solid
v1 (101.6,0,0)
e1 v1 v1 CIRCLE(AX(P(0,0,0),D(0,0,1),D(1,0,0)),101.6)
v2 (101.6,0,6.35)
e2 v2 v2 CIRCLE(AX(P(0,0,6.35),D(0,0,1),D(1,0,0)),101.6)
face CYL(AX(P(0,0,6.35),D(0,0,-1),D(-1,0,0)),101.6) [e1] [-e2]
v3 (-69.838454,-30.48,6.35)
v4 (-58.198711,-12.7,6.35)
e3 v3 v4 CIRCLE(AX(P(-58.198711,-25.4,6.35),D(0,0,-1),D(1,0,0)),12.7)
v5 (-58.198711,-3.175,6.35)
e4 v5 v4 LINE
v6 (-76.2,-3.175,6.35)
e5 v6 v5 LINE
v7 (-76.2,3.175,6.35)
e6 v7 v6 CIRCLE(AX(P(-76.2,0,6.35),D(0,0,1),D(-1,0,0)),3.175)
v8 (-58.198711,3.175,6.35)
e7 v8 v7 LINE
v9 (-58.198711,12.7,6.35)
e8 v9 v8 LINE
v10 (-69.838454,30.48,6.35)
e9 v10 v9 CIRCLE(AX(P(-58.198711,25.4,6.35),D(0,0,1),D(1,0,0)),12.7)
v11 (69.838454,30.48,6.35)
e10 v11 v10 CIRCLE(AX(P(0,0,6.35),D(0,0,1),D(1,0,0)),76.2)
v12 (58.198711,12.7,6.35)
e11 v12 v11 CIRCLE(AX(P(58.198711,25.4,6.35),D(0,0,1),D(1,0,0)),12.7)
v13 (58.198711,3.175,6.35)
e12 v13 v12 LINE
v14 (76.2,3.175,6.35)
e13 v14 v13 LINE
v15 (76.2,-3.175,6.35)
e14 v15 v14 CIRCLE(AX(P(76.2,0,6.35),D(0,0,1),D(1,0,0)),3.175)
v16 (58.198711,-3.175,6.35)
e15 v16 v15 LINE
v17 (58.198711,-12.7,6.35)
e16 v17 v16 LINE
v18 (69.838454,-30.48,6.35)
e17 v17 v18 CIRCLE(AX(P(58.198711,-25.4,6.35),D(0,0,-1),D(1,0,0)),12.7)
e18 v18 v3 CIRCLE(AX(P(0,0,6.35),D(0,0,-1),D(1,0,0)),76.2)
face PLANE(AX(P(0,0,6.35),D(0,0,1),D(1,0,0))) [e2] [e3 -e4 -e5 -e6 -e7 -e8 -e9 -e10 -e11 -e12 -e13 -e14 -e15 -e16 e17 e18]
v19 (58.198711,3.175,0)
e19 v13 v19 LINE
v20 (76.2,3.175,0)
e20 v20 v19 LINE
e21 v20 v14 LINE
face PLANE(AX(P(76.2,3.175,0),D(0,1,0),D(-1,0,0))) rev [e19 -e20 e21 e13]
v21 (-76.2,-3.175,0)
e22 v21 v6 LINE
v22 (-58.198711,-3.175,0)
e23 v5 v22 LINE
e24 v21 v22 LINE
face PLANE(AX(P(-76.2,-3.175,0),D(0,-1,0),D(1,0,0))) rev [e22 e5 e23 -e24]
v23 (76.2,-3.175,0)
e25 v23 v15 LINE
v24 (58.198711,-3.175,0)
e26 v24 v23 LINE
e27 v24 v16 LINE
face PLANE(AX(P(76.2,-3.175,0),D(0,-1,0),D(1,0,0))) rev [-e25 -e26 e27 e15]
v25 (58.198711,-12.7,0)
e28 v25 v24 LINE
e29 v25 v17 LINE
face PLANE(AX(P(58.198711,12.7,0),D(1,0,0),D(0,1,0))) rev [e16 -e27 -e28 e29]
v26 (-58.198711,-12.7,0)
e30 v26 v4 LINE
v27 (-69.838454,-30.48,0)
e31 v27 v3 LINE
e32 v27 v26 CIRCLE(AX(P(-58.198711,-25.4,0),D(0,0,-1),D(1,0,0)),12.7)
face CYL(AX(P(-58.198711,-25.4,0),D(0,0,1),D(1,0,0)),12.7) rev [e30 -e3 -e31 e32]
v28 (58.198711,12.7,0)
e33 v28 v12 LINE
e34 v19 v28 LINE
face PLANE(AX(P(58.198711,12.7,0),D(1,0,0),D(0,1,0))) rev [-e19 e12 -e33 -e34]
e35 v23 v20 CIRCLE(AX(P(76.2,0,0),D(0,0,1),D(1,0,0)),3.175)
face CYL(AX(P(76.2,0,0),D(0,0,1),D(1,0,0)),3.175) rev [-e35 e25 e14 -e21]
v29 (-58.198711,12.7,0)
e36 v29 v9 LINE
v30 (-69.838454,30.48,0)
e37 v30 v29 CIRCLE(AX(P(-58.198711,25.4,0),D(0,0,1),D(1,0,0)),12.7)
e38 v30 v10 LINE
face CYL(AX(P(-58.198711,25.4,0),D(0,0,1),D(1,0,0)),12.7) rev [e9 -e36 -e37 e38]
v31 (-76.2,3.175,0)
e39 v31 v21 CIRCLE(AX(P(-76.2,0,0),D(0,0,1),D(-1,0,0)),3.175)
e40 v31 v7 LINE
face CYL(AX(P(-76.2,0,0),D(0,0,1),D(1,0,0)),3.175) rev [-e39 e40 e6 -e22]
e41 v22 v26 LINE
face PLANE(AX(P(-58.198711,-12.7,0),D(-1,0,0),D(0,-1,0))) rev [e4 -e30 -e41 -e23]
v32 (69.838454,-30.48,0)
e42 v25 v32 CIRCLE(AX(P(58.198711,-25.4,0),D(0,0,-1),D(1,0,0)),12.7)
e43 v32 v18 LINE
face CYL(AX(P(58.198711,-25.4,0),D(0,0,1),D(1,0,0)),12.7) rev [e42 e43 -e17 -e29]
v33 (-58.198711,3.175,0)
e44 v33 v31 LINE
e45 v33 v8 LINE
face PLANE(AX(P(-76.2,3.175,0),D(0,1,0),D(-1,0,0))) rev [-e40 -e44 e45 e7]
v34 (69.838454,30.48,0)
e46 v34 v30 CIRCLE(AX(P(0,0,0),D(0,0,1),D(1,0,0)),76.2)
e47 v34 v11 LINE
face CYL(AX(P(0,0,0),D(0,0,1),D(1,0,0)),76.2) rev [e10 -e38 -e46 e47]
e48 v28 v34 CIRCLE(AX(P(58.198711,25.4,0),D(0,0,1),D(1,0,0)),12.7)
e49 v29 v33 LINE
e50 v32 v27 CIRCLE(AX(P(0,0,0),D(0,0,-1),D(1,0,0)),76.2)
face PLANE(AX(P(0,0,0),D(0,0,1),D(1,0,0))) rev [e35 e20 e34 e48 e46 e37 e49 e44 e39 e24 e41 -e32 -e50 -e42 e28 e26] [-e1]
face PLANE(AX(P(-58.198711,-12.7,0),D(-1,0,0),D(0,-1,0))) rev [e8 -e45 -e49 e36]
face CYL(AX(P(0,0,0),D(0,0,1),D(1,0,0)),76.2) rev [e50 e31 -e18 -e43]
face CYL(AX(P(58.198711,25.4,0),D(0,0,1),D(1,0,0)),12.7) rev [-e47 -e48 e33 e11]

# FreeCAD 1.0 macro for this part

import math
import FreeCAD as App
import Part
import Sketcher
Q = App.Units.Quantity

doc = App.newDocument("Part")
params = doc.addObject("Spreadsheet::Sheet", "Params")
for row, (alias, value) in enumerate([
    ("sketch1_diameter", "8 in"),
    ("pad1_length", "0.25 in"),
    ("sketch2_diameter", "2 in"),
    ("sketch3_radius", "3 in"),
    ("sketch3_radius2", "2 in"),
    ("sketch4_width", "2 in"),
    ("sketch4_radius", "0.125 in"),
    ("sketch5_radius", "2 in"),
    ("sketch5_radius2", "0.5 in"),
    ("sketch5_height", "1 in"),
], start=1):
    params.set(f"A{row}", alias)
    params.set(f"B{row}", "=" + value)
    params.setAlias(f"B{row}", alias)

body = doc.addObject("PartDesign::Body", "Body")

sketch1 = body.newObject("Sketcher::SketchObject", "Sketch")
sketch1.AttachmentSupport = (doc.getObject("XY_Plane"), [""])
sketch1.MapMode = "FlatFace"
sketch1.addGeometry(Part.Circle(App.Vector(0, 0, 0), App.Vector(0, 0, 1), 101.6), False)
sketch1.addConstraint(Sketcher.Constraint("Coincident", 0, 3, -1, 1))
sketch1.addConstraint(Sketcher.Constraint("Diameter", 0, Q("8 in")))
sketch1.setExpression("Constraints[1]", "Params.sketch1_diameter")
pad1 = body.newObject("PartDesign::Pad", "Pad")
pad1.Profile = sketch1
pad1.setExpression("Length", "Params.pad1_length")

sketch2 = body.newObject("Sketcher::SketchObject", "Sketch001")
sketch2.AttachmentSupport = (doc.getObject("XY_Plane"), [""])
sketch2.MapMode = "FlatFace"
sketch2.AttachmentOffset = App.Placement(App.Vector(0, 0, 0.25 * 25.4), App.Rotation())
sketch2.addGeometry(Part.Circle(App.Vector(0, 0, 0), App.Vector(0, 0, 1), 25.4), False)
sketch2.addConstraint(Sketcher.Constraint("Coincident", 0, 3, -1, 1))
sketch2.addConstraint(Sketcher.Constraint("Diameter", 0, Q("2 in")))
sketch2.setExpression("Constraints[1]", "Params.sketch2_diameter")
pocket1 = body.newObject("PartDesign::Pocket", "Pocket")
pocket1.Profile = sketch2
pocket1.Type = "ThroughAll"

sketch3 = body.newObject("Sketcher::SketchObject", "Sketch002")
sketch3.AttachmentSupport = (doc.getObject("XY_Plane"), [""])
sketch3.MapMode = "FlatFace"
sketch3.AttachmentOffset = App.Placement(App.Vector(0, 0, 0.25 * 25.4), App.Rotation())
sketch3.addGeometry(Part.ArcOfCircle(Part.Circle(App.Vector(0, 0, 0), App.Vector(0, 0, 1), 76.2), math.radians(23.578178), math.radians(156.421822)), False)
sketch3.addGeometry(Part.ArcOfCircle(Part.Circle(App.Vector(-58.198711, 25.4, 0), App.Vector(0, 0, 1), 12.7), math.radians(156.421822), math.radians(336.421822)), False)
sketch3.addGeometry(Part.ArcOfCircle(Part.Circle(App.Vector(0, 0, 0), App.Vector(0, 0, 1), 50.8), math.radians(23.578178), math.radians(156.421822)), False)
sketch3.addGeometry(Part.ArcOfCircle(Part.Circle(App.Vector(58.198711, 25.4, 0), App.Vector(0, 0, 1), 12.7), math.radians(-156.421822), math.radians(23.578178)), False)
sketch3.addConstraint(Sketcher.Constraint("Tangent", 0, 2, 1, 1))
sketch3.addConstraint(Sketcher.Constraint("Tangent", 1, 2, 2, 2))
sketch3.addConstraint(Sketcher.Constraint("Tangent", 2, 1, 3, 1))
sketch3.addConstraint(Sketcher.Constraint("Tangent", 3, 2, 0, 1))
sketch3.addConstraint(Sketcher.Constraint("Coincident", 0, 3, -1, 1))
sketch3.addConstraint(Sketcher.Constraint("Coincident", 2, 3, -1, 1))
sketch3.addConstraint(Sketcher.Constraint("Horizontal", 1, 3, 3, 3))
sketch3.addConstraint(Sketcher.Constraint("Radius", 0, Q("3 in")))
sketch3.addConstraint(Sketcher.Constraint("Radius", 2, Q("2 in")))
sketch3.addConstraint(Sketcher.Constraint("DistanceY", -1, 1, 1, 3, Q("1 in")))
sketch3.setExpression("Constraints[7]", "Params.sketch3_radius")
sketch3.setExpression("Constraints[8]", "Params.sketch3_radius2")
pocket2 = body.newObject("PartDesign::Pocket", "Pocket001")
pocket2.Profile = sketch3
pocket2.Type = "ThroughAll"
doc.recompute()

mirrored = body.newObject("PartDesign::Mirrored", "Mirrored")
mirrored.Originals = [pocket2]
mirrored.MirrorPlane = (doc.getObject("XZ_Plane"), [""])
body.Tip = mirrored

sketch4 = body.newObject("Sketcher::SketchObject", "Sketch003")
sketch4.AttachmentSupport = (doc.getObject("XY_Plane"), [""])
sketch4.MapMode = "FlatFace"
sketch4.AttachmentOffset = App.Placement(App.Vector(0, 0, 0.25 * 25.4), App.Rotation())
sketch4.addGeometry(Part.LineSegment(App.Vector(25.4, -3.175, 0), App.Vector(76.2, -3.175, 0)), False)
sketch4.addGeometry(Part.ArcOfCircle(Part.Circle(App.Vector(76.2, 0, 0), App.Vector(0, 0, 1), 3.175), math.radians(-90), math.radians(90)), False)
sketch4.addGeometry(Part.LineSegment(App.Vector(76.2, 3.175, 0), App.Vector(25.4, 3.175, 0)), False)
sketch4.addGeometry(Part.ArcOfCircle(Part.Circle(App.Vector(25.4, 0, 0), App.Vector(0, 0, 1), 3.175), math.radians(90), math.radians(270)), False)
sketch4.addGeometry(Part.LineSegment(App.Vector(-76.2, -3.175, 0), App.Vector(-25.4, -3.175, 0)), False)
sketch4.addGeometry(Part.ArcOfCircle(Part.Circle(App.Vector(-25.4, 0, 0), App.Vector(0, 0, 1), 3.175), math.radians(-90), math.radians(90)), False)
sketch4.addGeometry(Part.LineSegment(App.Vector(-25.4, 3.175, 0), App.Vector(-76.2, 3.175, 0)), False)
sketch4.addGeometry(Part.ArcOfCircle(Part.Circle(App.Vector(-76.2, 0, 0), App.Vector(0, 0, 1), 3.175), math.radians(90), math.radians(270)), False)
sketch4.addConstraint(Sketcher.Constraint("Tangent", 0, 2, 1, 1))
sketch4.addConstraint(Sketcher.Constraint("Tangent", 1, 2, 2, 1))
sketch4.addConstraint(Sketcher.Constraint("Tangent", 2, 2, 3, 1))
sketch4.addConstraint(Sketcher.Constraint("Tangent", 3, 2, 0, 1))
sketch4.addConstraint(Sketcher.Constraint("Tangent", 4, 2, 5, 1))
sketch4.addConstraint(Sketcher.Constraint("Tangent", 5, 2, 6, 1))
sketch4.addConstraint(Sketcher.Constraint("Tangent", 6, 2, 7, 1))
sketch4.addConstraint(Sketcher.Constraint("Tangent", 7, 2, 4, 1))
sketch4.addConstraint(Sketcher.Constraint("Horizontal", 0))
sketch4.addConstraint(Sketcher.Constraint("Horizontal", 2))
sketch4.addConstraint(Sketcher.Constraint("Horizontal", 4))
sketch4.addConstraint(Sketcher.Constraint("Horizontal", 6))
sketch4.addConstraint(Sketcher.Constraint("Equal", 3, 5))
sketch4.addConstraint(Sketcher.Constraint("Symmetric", 3, 3, 5, 3, -1, 1))
sketch4.addConstraint(Sketcher.Constraint("Symmetric", 1, 3, 7, 3, -2))
sketch4.addConstraint(Sketcher.Constraint("DistanceX", 0, 1, 0, 2, Q("2 in")))
sketch4.addConstraint(Sketcher.Constraint("DistanceX", -1, 1, 1, 3, Q("3 in")))
sketch4.addConstraint(Sketcher.Constraint("Radius", 1, Q("0.125 in")))
sketch4.setExpression("Constraints[15]", "Params.sketch4_width")
sketch4.setExpression("Constraints[17]", "Params.sketch4_radius")
pocket3 = body.newObject("PartDesign::Pocket", "Pocket002")
pocket3.Profile = sketch4
pocket3.Type = "ThroughAll"

sketch5 = body.newObject("Sketcher::SketchObject", "Sketch004")
sketch5.AttachmentSupport = (doc.getObject("XY_Plane"), [""])
sketch5.MapMode = "FlatFace"
sketch5.AttachmentOffset = App.Placement(App.Vector(0, 0, 0.25 * 25.4), App.Rotation())
sketch5.addGeometry(Part.LineSegment(App.Vector(-58.198711, 12.7, 0), App.Vector(-58.198711, -12.7, 0)), False)
sketch5.addGeometry(Part.ArcOfCircle(Part.Circle(App.Vector(-58.198711, -25.4, 0), App.Vector(0, 0, 1), 12.7), math.radians(23.578178), math.radians(90)), False)
sketch5.addGeometry(Part.ArcOfCircle(Part.Circle(App.Vector(0, 0, 0), App.Vector(0, 0, 1), 50.8), math.radians(-156.421822), math.radians(-23.578178)), False)
sketch5.addGeometry(Part.ArcOfCircle(Part.Circle(App.Vector(58.198711, -25.4, 0), App.Vector(0, 0, 1), 12.7), math.radians(90), math.radians(156.421822)), False)
sketch5.addGeometry(Part.LineSegment(App.Vector(58.198711, -12.7, 0), App.Vector(58.198711, 12.7, 0)), False)
sketch5.addGeometry(Part.ArcOfCircle(Part.Circle(App.Vector(58.198711, 25.4, 0), App.Vector(0, 0, 1), 12.7), math.radians(-156.421822), math.radians(-90)), False)
sketch5.addGeometry(Part.ArcOfCircle(Part.Circle(App.Vector(0, 0, 0), App.Vector(0, 0, 1), 50.8), math.radians(23.578178), math.radians(156.421822)), False)
sketch5.addGeometry(Part.ArcOfCircle(Part.Circle(App.Vector(-58.198711, 25.4, 0), App.Vector(0, 0, 1), 12.7), math.radians(-90), math.radians(-23.578178)), False)
sketch5.addConstraint(Sketcher.Constraint("Coincident", 0, 2, 1, 2))
sketch5.addConstraint(Sketcher.Constraint("Tangent", 1, 1, 2, 1))
sketch5.addConstraint(Sketcher.Constraint("Tangent", 2, 2, 3, 2))
sketch5.addConstraint(Sketcher.Constraint("Coincident", 3, 1, 4, 1))
sketch5.addConstraint(Sketcher.Constraint("Coincident", 4, 2, 5, 2))
sketch5.addConstraint(Sketcher.Constraint("Tangent", 5, 1, 6, 1))
sketch5.addConstraint(Sketcher.Constraint("Tangent", 6, 2, 7, 2))
sketch5.addConstraint(Sketcher.Constraint("Coincident", 7, 1, 0, 1))
sketch5.addConstraint(Sketcher.Constraint("Vertical", 0))
sketch5.addConstraint(Sketcher.Constraint("Vertical", 4))
sketch5.addConstraint(Sketcher.Constraint("Coincident", 2, 3, -1, 1))
sketch5.addConstraint(Sketcher.Constraint("Coincident", 6, 3, -1, 1))
sketch5.addConstraint(Sketcher.Constraint("Equal", 1, 3))
sketch5.addConstraint(Sketcher.Constraint("Equal", 3, 5))
sketch5.addConstraint(Sketcher.Constraint("Equal", 2, 6))
sketch5.addConstraint(Sketcher.Constraint("Equal", 5, 7))
sketch5.addConstraint(Sketcher.Constraint("Symmetric", 0, 2, 4, 2, -1, 1))
sketch5.addConstraint(Sketcher.Constraint("Horizontal", 1, 3, 3, 3))
sketch5.addConstraint(Sketcher.Constraint("Horizontal", 5, 3, 7, 3))
sketch5.addConstraint(Sketcher.Constraint("Vertical", 7, 3, 0, 2))
sketch5.addConstraint(Sketcher.Constraint("Radius", 2, Q("2 in")))
sketch5.addConstraint(Sketcher.Constraint("Radius", 1, Q("0.5 in")))
sketch5.addConstraint(Sketcher.Constraint("DistanceY", 0, 2, 0, 1, Q("1 in")))
sketch5.setExpression("Constraints[20]", "Params.sketch5_radius")
sketch5.setExpression("Constraints[21]", "Params.sketch5_radius2")
sketch5.setExpression("Constraints[22]", "Params.sketch5_height")
pocket4 = body.newObject("PartDesign::Pocket", "Pocket003")
pocket4.Profile = sketch5
pocket4.Type = "ThroughAll"

doc.recompute()
